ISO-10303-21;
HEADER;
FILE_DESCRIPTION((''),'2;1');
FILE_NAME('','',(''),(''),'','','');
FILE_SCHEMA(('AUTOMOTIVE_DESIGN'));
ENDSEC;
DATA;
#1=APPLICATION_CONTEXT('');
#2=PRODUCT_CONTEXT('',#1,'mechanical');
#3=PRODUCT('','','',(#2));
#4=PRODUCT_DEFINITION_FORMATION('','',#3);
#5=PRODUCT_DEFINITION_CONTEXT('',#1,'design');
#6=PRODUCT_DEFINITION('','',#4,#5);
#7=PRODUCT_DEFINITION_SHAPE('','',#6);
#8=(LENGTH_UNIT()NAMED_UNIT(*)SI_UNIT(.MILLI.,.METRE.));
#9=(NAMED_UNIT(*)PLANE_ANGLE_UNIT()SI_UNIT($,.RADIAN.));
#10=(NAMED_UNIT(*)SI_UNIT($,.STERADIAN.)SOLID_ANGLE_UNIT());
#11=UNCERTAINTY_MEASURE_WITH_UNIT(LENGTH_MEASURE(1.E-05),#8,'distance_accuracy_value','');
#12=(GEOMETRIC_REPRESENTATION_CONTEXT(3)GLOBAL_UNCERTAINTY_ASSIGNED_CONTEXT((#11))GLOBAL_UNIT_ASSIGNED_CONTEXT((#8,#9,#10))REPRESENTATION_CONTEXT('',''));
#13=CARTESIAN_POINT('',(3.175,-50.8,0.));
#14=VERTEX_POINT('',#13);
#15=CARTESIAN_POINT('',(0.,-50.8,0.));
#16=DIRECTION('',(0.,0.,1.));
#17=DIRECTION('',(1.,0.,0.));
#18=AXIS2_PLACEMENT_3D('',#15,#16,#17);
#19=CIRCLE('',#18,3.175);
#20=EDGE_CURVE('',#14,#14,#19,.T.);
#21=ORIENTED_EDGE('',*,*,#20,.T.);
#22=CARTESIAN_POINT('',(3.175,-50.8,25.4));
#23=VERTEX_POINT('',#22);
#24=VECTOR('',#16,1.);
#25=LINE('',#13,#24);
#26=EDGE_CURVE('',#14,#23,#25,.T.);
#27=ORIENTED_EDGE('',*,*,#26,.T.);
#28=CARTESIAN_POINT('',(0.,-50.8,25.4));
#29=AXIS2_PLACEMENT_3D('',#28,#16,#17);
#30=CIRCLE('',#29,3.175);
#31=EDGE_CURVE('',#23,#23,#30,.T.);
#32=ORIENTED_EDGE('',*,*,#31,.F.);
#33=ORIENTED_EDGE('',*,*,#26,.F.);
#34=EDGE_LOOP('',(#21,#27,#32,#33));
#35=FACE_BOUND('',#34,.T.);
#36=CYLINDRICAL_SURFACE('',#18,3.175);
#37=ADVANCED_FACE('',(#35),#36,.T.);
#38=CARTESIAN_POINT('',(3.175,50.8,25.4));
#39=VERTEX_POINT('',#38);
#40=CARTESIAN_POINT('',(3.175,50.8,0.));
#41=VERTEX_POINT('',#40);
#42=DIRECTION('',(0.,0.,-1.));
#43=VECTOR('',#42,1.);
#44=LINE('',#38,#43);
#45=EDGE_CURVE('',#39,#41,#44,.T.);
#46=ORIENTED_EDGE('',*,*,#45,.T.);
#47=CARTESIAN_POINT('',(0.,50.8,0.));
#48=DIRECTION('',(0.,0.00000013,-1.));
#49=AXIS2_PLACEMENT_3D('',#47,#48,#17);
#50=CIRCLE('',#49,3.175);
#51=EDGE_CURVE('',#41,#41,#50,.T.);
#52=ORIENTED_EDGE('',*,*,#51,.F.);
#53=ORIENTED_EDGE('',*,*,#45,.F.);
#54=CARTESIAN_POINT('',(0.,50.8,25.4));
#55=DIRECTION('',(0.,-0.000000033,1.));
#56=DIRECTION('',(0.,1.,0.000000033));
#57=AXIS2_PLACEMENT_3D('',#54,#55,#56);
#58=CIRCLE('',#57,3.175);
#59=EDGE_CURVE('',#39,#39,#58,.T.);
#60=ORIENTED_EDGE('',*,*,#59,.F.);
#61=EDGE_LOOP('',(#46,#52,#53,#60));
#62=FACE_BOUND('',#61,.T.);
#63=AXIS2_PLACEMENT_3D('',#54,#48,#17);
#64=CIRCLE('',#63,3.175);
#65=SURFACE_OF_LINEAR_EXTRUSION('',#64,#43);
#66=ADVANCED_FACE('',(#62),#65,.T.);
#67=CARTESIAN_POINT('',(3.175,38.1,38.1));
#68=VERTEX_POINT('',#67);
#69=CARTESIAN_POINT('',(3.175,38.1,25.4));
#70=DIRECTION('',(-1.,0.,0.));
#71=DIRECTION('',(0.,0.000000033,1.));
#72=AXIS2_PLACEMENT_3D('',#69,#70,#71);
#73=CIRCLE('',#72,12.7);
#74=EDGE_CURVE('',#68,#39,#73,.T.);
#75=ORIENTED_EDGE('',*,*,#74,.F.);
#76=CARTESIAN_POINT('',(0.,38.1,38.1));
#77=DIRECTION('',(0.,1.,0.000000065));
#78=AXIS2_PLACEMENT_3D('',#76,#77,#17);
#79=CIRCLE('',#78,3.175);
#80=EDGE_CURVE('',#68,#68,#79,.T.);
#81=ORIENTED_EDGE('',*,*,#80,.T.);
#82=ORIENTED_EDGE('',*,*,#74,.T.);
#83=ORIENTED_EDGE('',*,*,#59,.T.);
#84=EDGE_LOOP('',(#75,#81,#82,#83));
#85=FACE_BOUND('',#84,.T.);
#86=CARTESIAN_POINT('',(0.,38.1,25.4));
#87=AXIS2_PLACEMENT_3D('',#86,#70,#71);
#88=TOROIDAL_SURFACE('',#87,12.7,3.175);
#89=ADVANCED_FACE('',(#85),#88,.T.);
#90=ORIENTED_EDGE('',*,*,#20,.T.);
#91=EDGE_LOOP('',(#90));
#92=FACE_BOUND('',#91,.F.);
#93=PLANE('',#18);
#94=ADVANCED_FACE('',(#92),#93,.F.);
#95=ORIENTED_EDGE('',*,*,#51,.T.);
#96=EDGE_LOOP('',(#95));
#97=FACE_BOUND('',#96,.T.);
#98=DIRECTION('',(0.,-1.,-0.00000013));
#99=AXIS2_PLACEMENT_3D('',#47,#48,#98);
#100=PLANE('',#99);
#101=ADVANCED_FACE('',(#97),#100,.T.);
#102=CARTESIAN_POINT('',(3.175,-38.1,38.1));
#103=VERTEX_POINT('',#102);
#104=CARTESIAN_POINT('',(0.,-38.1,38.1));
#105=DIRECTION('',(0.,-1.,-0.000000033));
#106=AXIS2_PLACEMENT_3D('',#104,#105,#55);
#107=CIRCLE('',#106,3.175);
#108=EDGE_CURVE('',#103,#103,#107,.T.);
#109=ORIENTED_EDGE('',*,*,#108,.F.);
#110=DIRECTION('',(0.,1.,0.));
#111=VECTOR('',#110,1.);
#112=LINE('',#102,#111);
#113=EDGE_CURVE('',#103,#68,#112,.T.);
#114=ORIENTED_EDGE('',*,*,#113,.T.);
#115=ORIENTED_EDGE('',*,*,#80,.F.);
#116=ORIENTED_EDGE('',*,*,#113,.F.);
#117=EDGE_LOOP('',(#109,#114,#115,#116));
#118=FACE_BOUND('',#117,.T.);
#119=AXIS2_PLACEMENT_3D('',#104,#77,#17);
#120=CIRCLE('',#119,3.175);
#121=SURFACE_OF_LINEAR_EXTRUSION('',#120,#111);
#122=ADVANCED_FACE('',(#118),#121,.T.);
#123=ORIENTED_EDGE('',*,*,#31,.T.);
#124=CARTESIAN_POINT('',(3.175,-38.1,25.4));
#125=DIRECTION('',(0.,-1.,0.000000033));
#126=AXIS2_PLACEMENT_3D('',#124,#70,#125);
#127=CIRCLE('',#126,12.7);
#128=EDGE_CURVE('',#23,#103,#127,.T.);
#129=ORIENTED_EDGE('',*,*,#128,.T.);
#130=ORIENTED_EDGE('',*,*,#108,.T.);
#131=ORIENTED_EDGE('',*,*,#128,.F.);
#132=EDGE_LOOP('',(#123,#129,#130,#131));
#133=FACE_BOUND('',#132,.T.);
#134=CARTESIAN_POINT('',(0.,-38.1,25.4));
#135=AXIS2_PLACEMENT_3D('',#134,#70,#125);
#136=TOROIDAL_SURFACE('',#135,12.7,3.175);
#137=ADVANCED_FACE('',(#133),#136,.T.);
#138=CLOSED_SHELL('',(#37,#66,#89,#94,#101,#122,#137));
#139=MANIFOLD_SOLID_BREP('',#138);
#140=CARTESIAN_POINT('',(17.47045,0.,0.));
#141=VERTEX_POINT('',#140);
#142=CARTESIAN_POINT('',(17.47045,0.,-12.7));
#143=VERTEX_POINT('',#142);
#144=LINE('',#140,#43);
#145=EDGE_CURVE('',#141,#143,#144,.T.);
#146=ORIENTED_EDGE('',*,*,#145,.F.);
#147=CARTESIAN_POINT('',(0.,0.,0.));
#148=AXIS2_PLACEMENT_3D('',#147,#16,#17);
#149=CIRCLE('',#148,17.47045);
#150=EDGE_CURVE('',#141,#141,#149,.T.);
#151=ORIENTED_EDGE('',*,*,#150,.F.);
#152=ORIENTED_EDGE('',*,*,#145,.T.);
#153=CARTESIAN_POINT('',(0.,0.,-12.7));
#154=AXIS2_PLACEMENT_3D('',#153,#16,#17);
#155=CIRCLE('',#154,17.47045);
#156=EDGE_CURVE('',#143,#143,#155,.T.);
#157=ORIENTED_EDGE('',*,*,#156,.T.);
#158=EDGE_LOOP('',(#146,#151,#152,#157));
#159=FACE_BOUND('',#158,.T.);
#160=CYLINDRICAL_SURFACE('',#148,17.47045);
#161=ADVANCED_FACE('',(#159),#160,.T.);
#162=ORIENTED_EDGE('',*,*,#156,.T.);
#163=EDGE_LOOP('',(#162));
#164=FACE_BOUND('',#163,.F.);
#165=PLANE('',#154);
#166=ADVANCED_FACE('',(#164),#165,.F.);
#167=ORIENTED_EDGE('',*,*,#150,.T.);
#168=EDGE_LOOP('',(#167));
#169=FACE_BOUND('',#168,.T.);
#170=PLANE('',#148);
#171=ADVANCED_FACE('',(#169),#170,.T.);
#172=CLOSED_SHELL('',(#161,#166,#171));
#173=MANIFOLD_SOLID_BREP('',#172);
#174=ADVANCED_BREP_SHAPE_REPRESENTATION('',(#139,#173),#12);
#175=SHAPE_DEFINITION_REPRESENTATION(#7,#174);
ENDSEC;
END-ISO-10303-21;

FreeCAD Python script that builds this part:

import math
import FreeCAD as App
import Part
import Sketcher

V = App.Vector
Q = App.Units.Quantity

doc = App.newDocument("Part")
body = doc.addObject("PartDesign::Body", "Body")

sketch1 = body.newObject("Sketcher::SketchObject", "Sketch")
sketch1.AttachmentSupport = (doc.getObject("XY_Plane"), [""])
sketch1.MapMode = "FlatFace"
sketch1.addGeometry(Part.Circle(V(0, -50.8, 0), V(0, 0, 1), 3.175), False)
sketch1.addConstraint(Sketcher.Constraint("PointOnObject", 0, 3, -2))
sketch1.addConstraint(Sketcher.Constraint("Diameter", 0, Q("0.25 in")))
sketch1.addConstraint(Sketcher.Constraint("DistanceY", 0, 3, -1, 1, Q("2 in")))

sketch2 = body.newObject("Sketcher::SketchObject", "Sketch001")
sketch2.AttachmentSupport = (doc.getObject("YZ_Plane"), [""])
sketch2.MapMode = "FlatFace"
sketch2.addGeometry(Part.LineSegment(V(-50.8, 0, 0), V(-50.8, 25.4, 0)), False)
sketch2.addGeometry(Part.ArcOfCircle(Part.Circle(V(-38.1, 25.4, 0), V(0, 0, 1), 12.7), math.radians(90.000002), math.radians(179.999998)), False)
sketch2.addGeometry(Part.LineSegment(V(-38.1, 38.1, 0), V(38.1, 38.1, 0)), False)
sketch2.addGeometry(Part.ArcOfCircle(Part.Circle(V(38.1, 25.4, 0), V(0, 0, 1), 12.7), math.radians(0.000002), math.radians(89.999998)), False)
sketch2.addGeometry(Part.LineSegment(V(50.8, 25.4, 0), V(50.8, 0, 0)), False)
sketch2.addConstraint(Sketcher.Constraint("Tangent", 0, 2, 1, 2))
sketch2.addConstraint(Sketcher.Constraint("Tangent", 1, 1, 2, 1))
sketch2.addConstraint(Sketcher.Constraint("Tangent", 2, 2, 3, 2))
sketch2.addConstraint(Sketcher.Constraint("Tangent", 3, 1, 4, 1))
sketch2.addConstraint(Sketcher.Constraint("Vertical", 0))
sketch2.addConstraint(Sketcher.Constraint("Horizontal", 2))
sketch2.addConstraint(Sketcher.Constraint("Vertical", 4))
sketch2.addConstraint(Sketcher.Constraint("Equal", 1, 3))
sketch2.addConstraint(Sketcher.Constraint("Symmetric", 0, 1, 4, 2, -1, 1))
sketch2.addConstraint(Sketcher.Constraint("PointOnObject", 0, 1, -1))
sketch2.addConstraint(Sketcher.Constraint("Radius", 1, Q("0.5 in")))
sketch2.addConstraint(Sketcher.Constraint("DistanceX", 2, 1, 2, 2, Q("3 in")))
sketch2.addConstraint(Sketcher.Constraint("DistanceY", 0, 1, 0, 2, Q("1 in")))
doc.recompute()

additivepipe = body.newObject("PartDesign::AdditivePipe", "AdditivePipe")
additivepipe.Profile = sketch1
additivepipe.Spine = (sketch2, ["Edge1", "Edge2", "Edge3", "Edge4", "Edge5"])
body2 = doc.addObject("PartDesign::Body", "Body001")

sketch3 = body2.newObject("Sketcher::SketchObject", "Sketch002")
sketch3.AttachmentSupport = (doc.getObject("XY_Plane001"), [""])
sketch3.MapMode = "FlatFace"
sketch3.addGeometry(Part.Circle(V(0, 0, 0), V(0, 0, 1), 17.47045), False)
sketch3.addConstraint(Sketcher.Constraint("Coincident", 0, 3, -1, 1))
sketch3.addConstraint(Sketcher.Constraint("Diameter", 0, 34.9409))
pad1 = body2.newObject("PartDesign::Pad", "Pad")
pad1.Profile = sketch3
pad1.Length = Q("0.5 in")
pad1.Reversed = True

doc.recompute()
